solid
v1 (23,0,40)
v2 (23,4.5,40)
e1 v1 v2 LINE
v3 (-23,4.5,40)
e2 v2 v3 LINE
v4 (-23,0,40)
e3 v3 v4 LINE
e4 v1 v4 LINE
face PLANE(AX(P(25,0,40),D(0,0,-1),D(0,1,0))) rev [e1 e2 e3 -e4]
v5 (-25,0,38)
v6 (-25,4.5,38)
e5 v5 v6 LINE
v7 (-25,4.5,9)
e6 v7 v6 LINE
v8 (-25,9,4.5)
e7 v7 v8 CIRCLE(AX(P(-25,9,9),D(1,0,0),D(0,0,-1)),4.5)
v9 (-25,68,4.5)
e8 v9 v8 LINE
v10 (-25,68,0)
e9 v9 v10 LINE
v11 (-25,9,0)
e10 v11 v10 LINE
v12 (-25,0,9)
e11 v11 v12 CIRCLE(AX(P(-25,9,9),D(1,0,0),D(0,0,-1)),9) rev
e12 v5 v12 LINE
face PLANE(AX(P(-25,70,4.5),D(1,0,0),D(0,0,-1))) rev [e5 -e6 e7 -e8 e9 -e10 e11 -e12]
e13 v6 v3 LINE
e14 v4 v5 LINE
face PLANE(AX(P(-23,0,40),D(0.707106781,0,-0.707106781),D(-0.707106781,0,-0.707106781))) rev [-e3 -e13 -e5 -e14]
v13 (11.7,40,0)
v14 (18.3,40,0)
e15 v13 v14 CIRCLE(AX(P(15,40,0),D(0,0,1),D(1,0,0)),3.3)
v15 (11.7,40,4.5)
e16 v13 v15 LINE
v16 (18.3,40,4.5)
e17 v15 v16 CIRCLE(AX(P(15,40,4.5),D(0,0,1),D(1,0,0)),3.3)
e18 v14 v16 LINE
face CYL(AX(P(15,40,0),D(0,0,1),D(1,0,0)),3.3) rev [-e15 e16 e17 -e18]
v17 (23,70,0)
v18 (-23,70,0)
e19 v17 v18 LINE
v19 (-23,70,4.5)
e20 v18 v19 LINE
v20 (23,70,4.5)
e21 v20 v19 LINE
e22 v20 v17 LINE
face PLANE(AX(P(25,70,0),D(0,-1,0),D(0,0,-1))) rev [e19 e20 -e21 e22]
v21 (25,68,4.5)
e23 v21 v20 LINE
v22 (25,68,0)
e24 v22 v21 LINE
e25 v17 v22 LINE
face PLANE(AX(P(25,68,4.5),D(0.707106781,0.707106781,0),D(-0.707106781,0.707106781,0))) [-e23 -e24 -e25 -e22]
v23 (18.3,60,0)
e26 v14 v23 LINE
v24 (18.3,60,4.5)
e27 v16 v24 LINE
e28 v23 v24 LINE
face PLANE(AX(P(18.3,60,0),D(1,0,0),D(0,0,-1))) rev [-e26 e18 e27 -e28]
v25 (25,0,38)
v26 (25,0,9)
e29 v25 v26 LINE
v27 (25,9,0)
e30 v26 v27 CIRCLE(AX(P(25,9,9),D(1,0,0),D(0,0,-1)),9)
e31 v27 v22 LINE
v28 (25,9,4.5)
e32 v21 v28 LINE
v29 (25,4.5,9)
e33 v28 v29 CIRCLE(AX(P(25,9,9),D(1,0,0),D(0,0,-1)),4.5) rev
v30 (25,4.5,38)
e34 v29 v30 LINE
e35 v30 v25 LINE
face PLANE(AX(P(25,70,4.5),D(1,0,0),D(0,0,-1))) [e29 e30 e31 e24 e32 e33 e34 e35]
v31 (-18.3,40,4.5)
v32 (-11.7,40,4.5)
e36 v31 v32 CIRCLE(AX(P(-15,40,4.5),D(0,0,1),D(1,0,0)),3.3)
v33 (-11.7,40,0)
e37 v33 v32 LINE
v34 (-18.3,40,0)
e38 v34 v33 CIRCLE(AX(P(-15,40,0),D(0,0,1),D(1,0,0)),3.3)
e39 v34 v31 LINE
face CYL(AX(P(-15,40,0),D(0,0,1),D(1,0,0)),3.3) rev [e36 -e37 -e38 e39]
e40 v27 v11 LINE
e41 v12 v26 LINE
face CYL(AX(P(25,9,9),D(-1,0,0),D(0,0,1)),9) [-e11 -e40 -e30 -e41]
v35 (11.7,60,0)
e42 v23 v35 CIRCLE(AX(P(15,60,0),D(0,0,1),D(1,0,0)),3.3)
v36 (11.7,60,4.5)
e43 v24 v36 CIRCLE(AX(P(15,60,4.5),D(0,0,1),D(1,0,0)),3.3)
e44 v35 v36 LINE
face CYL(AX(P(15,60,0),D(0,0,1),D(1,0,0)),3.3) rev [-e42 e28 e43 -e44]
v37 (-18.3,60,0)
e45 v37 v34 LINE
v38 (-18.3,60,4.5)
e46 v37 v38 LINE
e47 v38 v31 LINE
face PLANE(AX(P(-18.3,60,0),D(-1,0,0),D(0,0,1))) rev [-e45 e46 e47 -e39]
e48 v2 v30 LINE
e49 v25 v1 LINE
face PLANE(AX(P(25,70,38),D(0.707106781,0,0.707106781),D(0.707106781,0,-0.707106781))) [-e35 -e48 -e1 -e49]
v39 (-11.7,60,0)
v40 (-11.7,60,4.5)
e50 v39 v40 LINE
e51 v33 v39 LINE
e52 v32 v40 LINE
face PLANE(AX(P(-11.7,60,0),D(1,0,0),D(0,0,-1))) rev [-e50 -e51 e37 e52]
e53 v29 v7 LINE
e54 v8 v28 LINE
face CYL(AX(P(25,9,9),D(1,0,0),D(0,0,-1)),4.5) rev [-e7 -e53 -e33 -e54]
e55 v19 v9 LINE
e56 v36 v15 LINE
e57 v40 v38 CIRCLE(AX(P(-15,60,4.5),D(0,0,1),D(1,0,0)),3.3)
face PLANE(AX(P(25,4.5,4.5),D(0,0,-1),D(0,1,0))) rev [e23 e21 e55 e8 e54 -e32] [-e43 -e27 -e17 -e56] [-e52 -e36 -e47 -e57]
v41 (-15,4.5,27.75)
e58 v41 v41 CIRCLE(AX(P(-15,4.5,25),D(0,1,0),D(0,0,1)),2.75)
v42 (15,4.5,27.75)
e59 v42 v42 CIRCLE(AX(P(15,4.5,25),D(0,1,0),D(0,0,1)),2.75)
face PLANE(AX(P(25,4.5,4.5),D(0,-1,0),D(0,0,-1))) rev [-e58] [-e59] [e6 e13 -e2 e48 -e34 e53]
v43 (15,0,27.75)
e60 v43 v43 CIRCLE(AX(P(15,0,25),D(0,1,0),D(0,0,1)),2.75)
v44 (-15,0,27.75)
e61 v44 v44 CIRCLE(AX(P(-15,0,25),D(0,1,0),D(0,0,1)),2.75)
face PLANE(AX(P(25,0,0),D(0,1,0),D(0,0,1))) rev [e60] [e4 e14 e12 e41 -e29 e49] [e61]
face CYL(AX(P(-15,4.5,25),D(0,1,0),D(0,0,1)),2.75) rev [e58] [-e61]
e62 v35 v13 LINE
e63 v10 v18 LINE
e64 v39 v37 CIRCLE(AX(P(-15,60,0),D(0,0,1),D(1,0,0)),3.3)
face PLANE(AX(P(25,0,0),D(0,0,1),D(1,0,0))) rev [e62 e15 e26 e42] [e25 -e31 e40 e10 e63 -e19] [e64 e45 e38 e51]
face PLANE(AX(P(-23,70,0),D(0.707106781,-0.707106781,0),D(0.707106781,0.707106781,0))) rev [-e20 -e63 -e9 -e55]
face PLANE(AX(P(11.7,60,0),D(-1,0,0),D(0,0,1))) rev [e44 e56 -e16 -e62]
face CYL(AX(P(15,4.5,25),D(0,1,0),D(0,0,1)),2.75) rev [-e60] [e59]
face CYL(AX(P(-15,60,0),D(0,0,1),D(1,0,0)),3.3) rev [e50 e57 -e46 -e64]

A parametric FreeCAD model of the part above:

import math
import FreeCAD as App
import Part
import Sketcher
from FreeCAD import Vector


def edges_at(feature, points):
    """Names of the edges that pass closest to the given points."""
    edges = feature.Shape.Edges
    near = lambda p: min(range(len(edges)), key=lambda i: edges[i].distToShape(Part.Vertex(*p))[0])
    return sorted({f"Edge{near(p) + 1}" for p in points})


def add_polygon(sketch, points):
    """Adds a closed chain of lines whose ends are joined by coincident constraints."""
    first, n = sketch.GeometryCount, len(points)
    for a, b in zip(points, points[1:] + points[:1]):
        sketch.addGeometry(Part.LineSegment(App.Vector(*a, 0), App.Vector(*b, 0)), False)
    for i in range(n):
        sketch.addConstraint(Sketcher.Constraint("Coincident", first + i, 2, first + (i + 1) % n, 1))

doc = App.newDocument("Part")
params = doc.addObject("Spreadsheet::Sheet", "Params")
for row, (alias, value) in enumerate([
    ("sketch1_width", "70 mm"),
    ("sketch1_height", "40 mm"),
    ("sketch1_width2", "65.5 mm"),
    ("pad1_length", "50 mm"),
    ("fillet_radius", "4.5 mm"),
    ("fillet2_radius", "9 mm"),
    ("sketch2_diameter", "5.5 mm"),
    ("hole_diameter", "5.5 mm"),
    ("sketch3_radius", "3.3 mm"),
    ("sketch3_height", "20 mm"),
    ("chamfer_size", "2 mm"),
], start=1):
    params.set(f"A{row}", alias)
    params.set(f"B{row}", "=" + value)
    params.setAlias(f"B{row}", alias)

body = doc.addObject("PartDesign::Body", "Body")

# Sketch on YZ plane
sketch1 = doc.addObject("Sketcher::SketchObject", "Sketch")
body.addObject(sketch1)
sketch1.AttachmentSupport = (doc.YZ_Plane, [""])
sketch1.MapMode = "FlatFace"
add_polygon(sketch1, [(0, 40), (0, 0), (70, 0), (70, 4.5), (4.5, 4.5), (4.5, 40)])  # lines 0-5
sketch1.addConstraint(Sketcher.Constraint("Vertical", 0))
sketch1.addConstraint(Sketcher.Constraint("Horizontal", 1))
sketch1.addConstraint(Sketcher.Constraint("Vertical", 2))
sketch1.addConstraint(Sketcher.Constraint("Horizontal", 3))
sketch1.addConstraint(Sketcher.Constraint("Vertical", 4))
sketch1.addConstraint(Sketcher.Constraint("Horizontal", 5))
sketch1.addConstraint(Sketcher.Constraint("Coincident", 0, 2, -1, 1))
sketch1.addConstraint(Sketcher.Constraint("Equal", 5, 2))
sketch1.addConstraint(Sketcher.Constraint("DistanceX", 1, 1, 1, 2, 70.0))
sketch1.addConstraint(Sketcher.Constraint("DistanceY", 0, 2, 0, 1, 40.0))
sketch1.addConstraint(Sketcher.Constraint("DistanceX", 3, 2, 3, 1, 65.5))
sketch1.setExpression("Constraints[14]", "Params.sketch1_width")
sketch1.setExpression("Constraints[15]", "Params.sketch1_height")
sketch1.setExpression("Constraints[16]", "Params.sketch1_width2")
pad1 = doc.addObject("PartDesign::Pad", "Pad")
body.addObject(pad1)
pad1.Profile = sketch1
pad1.setExpression("Length", "Params.pad1_length")
pad1.Midplane = True
doc.recompute()

fillet = doc.addObject("PartDesign::Fillet", "Fillet")
body.addObject(fillet)
fillet.Base = (pad1, edges_at(pad1, [(0, 4.5, 4.5)]))
fillet.setExpression("Radius", "Params.fillet_radius")
doc.recompute()

fillet2 = doc.addObject("PartDesign::Fillet", "Fillet001")
body.addObject(fillet2)
fillet2.Base = (fillet, edges_at(fillet, [(0, 0, 0)]))
fillet2.setExpression("Radius", "Params.fillet2_radius")

# Sketch on XZ plane
sketch2 = doc.addObject("Sketcher::SketchObject", "Sketch001")
body.addObject(sketch2)
sketch2.AttachmentSupport = (doc.XZ_Plane, [""])
sketch2.MapMode = "FlatFace"
sketch2.AttachmentOffset = App.Placement(Vector(0, 0, -4.5), App.Rotation())
sketch2.addGeometry(Part.Circle(Vector(-15, 25, 0), Vector(0, 0, 1), 2.8), False)
sketch2.addGeometry(Part.Circle(Vector(15, 25, 0), Vector(0, 0, 1), 2.8), False)
sketch2.addConstraint(Sketcher.Constraint("Equal", 0, 1))
sketch2.addConstraint(Sketcher.Constraint("Symmetric", 0, 3, 1, 3, -2))
sketch2.addConstraint(Sketcher.Constraint("Diameter", 0, 5.5))
sketch2.addConstraint(Sketcher.Constraint("DistanceX", 0, 3, -1, 1, 15.0))
sketch2.addConstraint(Sketcher.Constraint("DistanceY", -1, 1, 0, 3, 25.0))
sketch2.setExpression("Constraints[2]", "Params.sketch2_diameter")
doc.recompute()
hole = doc.addObject("PartDesign::Hole", "Hole")
body.addObject(hole)
hole.Profile = sketch2
hole.ThreadType = "None"
hole.setExpression("Diameter", "Params.hole_diameter")
hole.DepthType = "ThroughAll"
hole.Reversed = True

# Sketch on XY plane
sketch3 = doc.addObject("Sketcher::SketchObject", "Sketch002")
body.addObject(sketch3)
sketch3.AttachmentSupport = (doc.XY_Plane, [""])
sketch3.MapMode = "FlatFace"
sketch3.AttachmentOffset = App.Placement(Vector(0, 0, 4.5), App.Rotation())
sketch3.addGeometry(Part.LineSegment(Vector(-11.7, 40, 0), Vector(-11.7, 60, 0)), False)
sketch3.addGeometry(Part.ArcOfCircle(Part.Circle(Vector(-15, 60, 0), Vector(0, 0, 1), 3.3), math.radians(0), math.radians(180)), False)
sketch3.addGeometry(Part.LineSegment(Vector(-18.3, 60, 0), Vector(-18.3, 40, 0)), False)
sketch3.addGeometry(Part.ArcOfCircle(Part.Circle(Vector(-15, 40, 0), Vector(0, 0, 1), 3.3), math.radians(180), math.radians(360)), False)
sketch3.addGeometry(Part.LineSegment(Vector(18.3, 40, 0), Vector(18.3, 60, 0)), False)
sketch3.addGeometry(Part.ArcOfCircle(Part.Circle(Vector(15, 60, 0), Vector(0, 0, 1), 3.3), math.radians(0), math.radians(180)), False)
sketch3.addGeometry(Part.LineSegment(Vector(11.7, 60, 0), Vector(11.7, 40, 0)), False)
sketch3.addGeometry(Part.ArcOfCircle(Part.Circle(Vector(15, 40, 0), Vector(0, 0, 1), 3.3), math.radians(180), math.radians(360)), False)
sketch3.addConstraint(Sketcher.Constraint("Tangent", 0, 2, 1, 1))
sketch3.addConstraint(Sketcher.Constraint("Tangent", 1, 2, 2, 1))
sketch3.addConstraint(Sketcher.Constraint("Tangent", 2, 2, 3, 1))
sketch3.addConstraint(Sketcher.Constraint("Tangent", 3, 2, 0, 1))
sketch3.addConstraint(Sketcher.Constraint("Tangent", 4, 2, 5, 1))
sketch3.addConstraint(Sketcher.Constraint("Tangent", 5, 2, 6, 1))
sketch3.addConstraint(Sketcher.Constraint("Tangent", 6, 2, 7, 1))
sketch3.addConstraint(Sketcher.Constraint("Tangent", 7, 2, 4, 1))
sketch3.addConstraint(Sketcher.Constraint("Vertical", 0))
sketch3.addConstraint(Sketcher.Constraint("Vertical", 2))
sketch3.addConstraint(Sketcher.Constraint("Vertical", 4))
sketch3.addConstraint(Sketcher.Constraint("Vertical", 6))
sketch3.addConstraint(Sketcher.Constraint("Equal", 3, 5))
sketch3.addConstraint(Sketcher.Constraint("Symmetric", 1, 3, 5, 3, -2))
sketch3.addConstraint(Sketcher.Constraint("Horizontal", 3, 3, 7, 3))
sketch3.addConstraint(Sketcher.Constraint("Radius", 1, 3.3))
sketch3.addConstraint(Sketcher.Constraint("DistanceY", 0, 1, 0, 2, 20.0))
sketch3.addConstraint(Sketcher.Constraint("DistanceX", 1, 3, -1, 1, 15.0))
sketch3.addConstraint(Sketcher.Constraint("DistanceY", -1, 1, 1, 3, 60.0))
sketch3.setExpression("Constraints[15]", "Params.sketch3_radius")
sketch3.setExpression("Constraints[16]", "Params.sketch3_height")
pocket1 = doc.addObject("PartDesign::Pocket", "Pocket")
body.addObject(pocket1)
pocket1.Profile = sketch3
pocket1.Type = "ThroughAll"
doc.recompute()

chamfer = doc.addObject("PartDesign::Chamfer", "Chamfer")
body.addObject(chamfer)
chamfer.Base = (pocket1, edges_at(pocket1, [
    (25, 2.25, 40),
    (25, 70, 2.25),
    (-25, 70, 2.25),
    (-25, 2.25, 40),
]))
chamfer.setExpression("Size", "Params.chamfer_size")

doc.recompute()
